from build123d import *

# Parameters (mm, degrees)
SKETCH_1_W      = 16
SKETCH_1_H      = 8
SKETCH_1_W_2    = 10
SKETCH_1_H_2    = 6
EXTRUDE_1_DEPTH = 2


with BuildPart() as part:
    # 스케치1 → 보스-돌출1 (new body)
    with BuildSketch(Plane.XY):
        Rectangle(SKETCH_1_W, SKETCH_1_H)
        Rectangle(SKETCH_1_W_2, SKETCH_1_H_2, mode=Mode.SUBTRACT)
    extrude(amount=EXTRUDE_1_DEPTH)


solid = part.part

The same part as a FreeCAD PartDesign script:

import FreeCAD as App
import Part
import Sketcher

V = App.Vector

doc = App.newDocument("Part")
body = doc.addObject("PartDesign::Body", "Body")

# Sketch on XY plane
sketch1 = doc.addObject("Sketcher::SketchObject", "Sketch")
body.addObject(sketch1)
sketch1.AttachmentSupport = (doc.XY_Plane, [""])
sketch1.MapMode = "FlatFace"
sketch1.addGeometry([
    Part.LineSegment(V(-8, 4, 0), V(-8, -4, 0)),  # 0
    Part.LineSegment(V(-8, -4, 0), V(8, -4, 0)),  # 1
    Part.LineSegment(V(8, -4, 0), V(8, 4, 0)),  # 2
    Part.LineSegment(V(8, 4, 0), V(-8, 4, 0)),  # 3
    Part.LineSegment(V(5, -3, 0), V(-5, -3, 0)),  # 4
    Part.LineSegment(V(-5, -3, 0), V(-5, 3, 0)),  # 5
    Part.LineSegment(V(-5, 3, 0), V(5, 3, 0)),  # 6
    Part.LineSegment(V(5, 3, 0), V(5, -3, 0)),  # 7
], False)
sketch1.addConstraint([
    Sketcher.Constraint("Coincident", 0, 2, 1, 1),
    Sketcher.Constraint("Coincident", 1, 2, 2, 1),
    Sketcher.Constraint("Coincident", 2, 2, 3, 1),
    Sketcher.Constraint("Coincident", 3, 2, 0, 1),
    Sketcher.Constraint("Coincident", 4, 2, 5, 1),
    Sketcher.Constraint("Coincident", 5, 2, 6, 1),
    Sketcher.Constraint("Coincident", 6, 2, 7, 1),
    Sketcher.Constraint("Coincident", 7, 2, 4, 1),
    Sketcher.Constraint("Vertical", 0),
    Sketcher.Constraint("Horizontal", 1),
    Sketcher.Constraint("Vertical", 2),
    Sketcher.Constraint("Horizontal", 3),
    Sketcher.Constraint("Horizontal", 4),
    Sketcher.Constraint("Vertical", 5),
    Sketcher.Constraint("Horizontal", 6),
    Sketcher.Constraint("Vertical", 7),
    Sketcher.Constraint("Symmetric", 0, 2, 2, 2, -1, 1),
    Sketcher.Constraint("Symmetric", 4, 2, 6, 2, -1, 1),
    Sketcher.Constraint("DistanceX", 1, 1, 1, 2, 16.0),
    Sketcher.Constraint("DistanceX", 4, 2, 4, 1, 10.0),
    Sketcher.Constraint("DistanceY", 0, 2, 0, 1, 8.0),
    Sketcher.Constraint("DistanceY", 5, 1, 5, 2, 6.0),
])
pad1 = doc.addObject("PartDesign::Pad", "Pad")
body.addObject(pad1)
pad1.Profile = sketch1
pad1.Length = 2

doc.recompute()
